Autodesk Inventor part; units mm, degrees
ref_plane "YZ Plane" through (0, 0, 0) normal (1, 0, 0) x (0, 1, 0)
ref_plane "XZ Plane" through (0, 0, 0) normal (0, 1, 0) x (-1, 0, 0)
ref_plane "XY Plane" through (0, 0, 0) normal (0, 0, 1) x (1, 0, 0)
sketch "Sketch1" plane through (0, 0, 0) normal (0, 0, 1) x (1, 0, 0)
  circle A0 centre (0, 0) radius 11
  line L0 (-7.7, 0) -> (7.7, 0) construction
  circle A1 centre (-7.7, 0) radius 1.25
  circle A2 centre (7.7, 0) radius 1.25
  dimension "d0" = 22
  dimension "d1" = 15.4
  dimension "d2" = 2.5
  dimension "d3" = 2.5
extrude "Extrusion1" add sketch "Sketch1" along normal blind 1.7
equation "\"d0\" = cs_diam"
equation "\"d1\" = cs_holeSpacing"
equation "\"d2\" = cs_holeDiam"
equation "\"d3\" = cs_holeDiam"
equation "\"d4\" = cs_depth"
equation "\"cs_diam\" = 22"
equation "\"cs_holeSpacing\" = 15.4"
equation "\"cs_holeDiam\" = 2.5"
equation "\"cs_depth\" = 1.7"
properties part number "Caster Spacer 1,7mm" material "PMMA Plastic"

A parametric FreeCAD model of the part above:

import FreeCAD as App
import Part
import Sketcher

V = App.Vector

doc = App.newDocument("Part")
params = doc.addObject("Spreadsheet::Sheet", "Params")
for row, (alias, value) in enumerate([
    ("sketch1_diameter", "22 mm"),
    ("sketch1_diameter2", "2.5 mm"),
    ("pad1_length", "1.7 mm"),
], start=1):
    params.set(f"A{row}", alias)
    params.set(f"B{row}", "=" + value)
    params.setAlias(f"B{row}", alias)

body = doc.addObject("PartDesign::Body", "Body")

# Sketch on XY plane
sketch1 = doc.addObject("Sketcher::SketchObject", "Sketch")
body.addObject(sketch1)
sketch1.AttachmentSupport = (doc.XY_Plane, [""])
sketch1.MapMode = "FlatFace"
sketch1.addGeometry([
    Part.Circle(V(0, 0, 0), V(0, 0, 1), 11),
    Part.Circle(V(-7.7, 0, 0), V(0, 0, 1), 1.2),
    Part.Circle(V(7.7, 0, 0), V(0, 0, 1), 1.2),
], False)
sketch1.addConstraint([
    Sketcher.Constraint("Coincident", 0, 3, -1, 1),
    Sketcher.Constraint("Equal", 1, 2),
    Sketcher.Constraint("Symmetric", 1, 3, 2, 3, -1, 1),
    Sketcher.Constraint("PointOnObject", 1, 3, -1),
    Sketcher.Constraint("Diameter", 0, 22.0),
    Sketcher.Constraint("Diameter", 1, 2.5),
    Sketcher.Constraint("DistanceX", 1, 3, 2, 3, 15.4),
])
sketch1.setExpression("Constraints[4]", "Params.sketch1_diameter")
sketch1.setExpression("Constraints[5]", "Params.sketch1_diameter2")
pad1 = doc.addObject("PartDesign::Pad", "Pad")
body.addObject(pad1)
pad1.Profile = sketch1
pad1.setExpression("Length", "Params.pad1_length")

doc.recompute()
